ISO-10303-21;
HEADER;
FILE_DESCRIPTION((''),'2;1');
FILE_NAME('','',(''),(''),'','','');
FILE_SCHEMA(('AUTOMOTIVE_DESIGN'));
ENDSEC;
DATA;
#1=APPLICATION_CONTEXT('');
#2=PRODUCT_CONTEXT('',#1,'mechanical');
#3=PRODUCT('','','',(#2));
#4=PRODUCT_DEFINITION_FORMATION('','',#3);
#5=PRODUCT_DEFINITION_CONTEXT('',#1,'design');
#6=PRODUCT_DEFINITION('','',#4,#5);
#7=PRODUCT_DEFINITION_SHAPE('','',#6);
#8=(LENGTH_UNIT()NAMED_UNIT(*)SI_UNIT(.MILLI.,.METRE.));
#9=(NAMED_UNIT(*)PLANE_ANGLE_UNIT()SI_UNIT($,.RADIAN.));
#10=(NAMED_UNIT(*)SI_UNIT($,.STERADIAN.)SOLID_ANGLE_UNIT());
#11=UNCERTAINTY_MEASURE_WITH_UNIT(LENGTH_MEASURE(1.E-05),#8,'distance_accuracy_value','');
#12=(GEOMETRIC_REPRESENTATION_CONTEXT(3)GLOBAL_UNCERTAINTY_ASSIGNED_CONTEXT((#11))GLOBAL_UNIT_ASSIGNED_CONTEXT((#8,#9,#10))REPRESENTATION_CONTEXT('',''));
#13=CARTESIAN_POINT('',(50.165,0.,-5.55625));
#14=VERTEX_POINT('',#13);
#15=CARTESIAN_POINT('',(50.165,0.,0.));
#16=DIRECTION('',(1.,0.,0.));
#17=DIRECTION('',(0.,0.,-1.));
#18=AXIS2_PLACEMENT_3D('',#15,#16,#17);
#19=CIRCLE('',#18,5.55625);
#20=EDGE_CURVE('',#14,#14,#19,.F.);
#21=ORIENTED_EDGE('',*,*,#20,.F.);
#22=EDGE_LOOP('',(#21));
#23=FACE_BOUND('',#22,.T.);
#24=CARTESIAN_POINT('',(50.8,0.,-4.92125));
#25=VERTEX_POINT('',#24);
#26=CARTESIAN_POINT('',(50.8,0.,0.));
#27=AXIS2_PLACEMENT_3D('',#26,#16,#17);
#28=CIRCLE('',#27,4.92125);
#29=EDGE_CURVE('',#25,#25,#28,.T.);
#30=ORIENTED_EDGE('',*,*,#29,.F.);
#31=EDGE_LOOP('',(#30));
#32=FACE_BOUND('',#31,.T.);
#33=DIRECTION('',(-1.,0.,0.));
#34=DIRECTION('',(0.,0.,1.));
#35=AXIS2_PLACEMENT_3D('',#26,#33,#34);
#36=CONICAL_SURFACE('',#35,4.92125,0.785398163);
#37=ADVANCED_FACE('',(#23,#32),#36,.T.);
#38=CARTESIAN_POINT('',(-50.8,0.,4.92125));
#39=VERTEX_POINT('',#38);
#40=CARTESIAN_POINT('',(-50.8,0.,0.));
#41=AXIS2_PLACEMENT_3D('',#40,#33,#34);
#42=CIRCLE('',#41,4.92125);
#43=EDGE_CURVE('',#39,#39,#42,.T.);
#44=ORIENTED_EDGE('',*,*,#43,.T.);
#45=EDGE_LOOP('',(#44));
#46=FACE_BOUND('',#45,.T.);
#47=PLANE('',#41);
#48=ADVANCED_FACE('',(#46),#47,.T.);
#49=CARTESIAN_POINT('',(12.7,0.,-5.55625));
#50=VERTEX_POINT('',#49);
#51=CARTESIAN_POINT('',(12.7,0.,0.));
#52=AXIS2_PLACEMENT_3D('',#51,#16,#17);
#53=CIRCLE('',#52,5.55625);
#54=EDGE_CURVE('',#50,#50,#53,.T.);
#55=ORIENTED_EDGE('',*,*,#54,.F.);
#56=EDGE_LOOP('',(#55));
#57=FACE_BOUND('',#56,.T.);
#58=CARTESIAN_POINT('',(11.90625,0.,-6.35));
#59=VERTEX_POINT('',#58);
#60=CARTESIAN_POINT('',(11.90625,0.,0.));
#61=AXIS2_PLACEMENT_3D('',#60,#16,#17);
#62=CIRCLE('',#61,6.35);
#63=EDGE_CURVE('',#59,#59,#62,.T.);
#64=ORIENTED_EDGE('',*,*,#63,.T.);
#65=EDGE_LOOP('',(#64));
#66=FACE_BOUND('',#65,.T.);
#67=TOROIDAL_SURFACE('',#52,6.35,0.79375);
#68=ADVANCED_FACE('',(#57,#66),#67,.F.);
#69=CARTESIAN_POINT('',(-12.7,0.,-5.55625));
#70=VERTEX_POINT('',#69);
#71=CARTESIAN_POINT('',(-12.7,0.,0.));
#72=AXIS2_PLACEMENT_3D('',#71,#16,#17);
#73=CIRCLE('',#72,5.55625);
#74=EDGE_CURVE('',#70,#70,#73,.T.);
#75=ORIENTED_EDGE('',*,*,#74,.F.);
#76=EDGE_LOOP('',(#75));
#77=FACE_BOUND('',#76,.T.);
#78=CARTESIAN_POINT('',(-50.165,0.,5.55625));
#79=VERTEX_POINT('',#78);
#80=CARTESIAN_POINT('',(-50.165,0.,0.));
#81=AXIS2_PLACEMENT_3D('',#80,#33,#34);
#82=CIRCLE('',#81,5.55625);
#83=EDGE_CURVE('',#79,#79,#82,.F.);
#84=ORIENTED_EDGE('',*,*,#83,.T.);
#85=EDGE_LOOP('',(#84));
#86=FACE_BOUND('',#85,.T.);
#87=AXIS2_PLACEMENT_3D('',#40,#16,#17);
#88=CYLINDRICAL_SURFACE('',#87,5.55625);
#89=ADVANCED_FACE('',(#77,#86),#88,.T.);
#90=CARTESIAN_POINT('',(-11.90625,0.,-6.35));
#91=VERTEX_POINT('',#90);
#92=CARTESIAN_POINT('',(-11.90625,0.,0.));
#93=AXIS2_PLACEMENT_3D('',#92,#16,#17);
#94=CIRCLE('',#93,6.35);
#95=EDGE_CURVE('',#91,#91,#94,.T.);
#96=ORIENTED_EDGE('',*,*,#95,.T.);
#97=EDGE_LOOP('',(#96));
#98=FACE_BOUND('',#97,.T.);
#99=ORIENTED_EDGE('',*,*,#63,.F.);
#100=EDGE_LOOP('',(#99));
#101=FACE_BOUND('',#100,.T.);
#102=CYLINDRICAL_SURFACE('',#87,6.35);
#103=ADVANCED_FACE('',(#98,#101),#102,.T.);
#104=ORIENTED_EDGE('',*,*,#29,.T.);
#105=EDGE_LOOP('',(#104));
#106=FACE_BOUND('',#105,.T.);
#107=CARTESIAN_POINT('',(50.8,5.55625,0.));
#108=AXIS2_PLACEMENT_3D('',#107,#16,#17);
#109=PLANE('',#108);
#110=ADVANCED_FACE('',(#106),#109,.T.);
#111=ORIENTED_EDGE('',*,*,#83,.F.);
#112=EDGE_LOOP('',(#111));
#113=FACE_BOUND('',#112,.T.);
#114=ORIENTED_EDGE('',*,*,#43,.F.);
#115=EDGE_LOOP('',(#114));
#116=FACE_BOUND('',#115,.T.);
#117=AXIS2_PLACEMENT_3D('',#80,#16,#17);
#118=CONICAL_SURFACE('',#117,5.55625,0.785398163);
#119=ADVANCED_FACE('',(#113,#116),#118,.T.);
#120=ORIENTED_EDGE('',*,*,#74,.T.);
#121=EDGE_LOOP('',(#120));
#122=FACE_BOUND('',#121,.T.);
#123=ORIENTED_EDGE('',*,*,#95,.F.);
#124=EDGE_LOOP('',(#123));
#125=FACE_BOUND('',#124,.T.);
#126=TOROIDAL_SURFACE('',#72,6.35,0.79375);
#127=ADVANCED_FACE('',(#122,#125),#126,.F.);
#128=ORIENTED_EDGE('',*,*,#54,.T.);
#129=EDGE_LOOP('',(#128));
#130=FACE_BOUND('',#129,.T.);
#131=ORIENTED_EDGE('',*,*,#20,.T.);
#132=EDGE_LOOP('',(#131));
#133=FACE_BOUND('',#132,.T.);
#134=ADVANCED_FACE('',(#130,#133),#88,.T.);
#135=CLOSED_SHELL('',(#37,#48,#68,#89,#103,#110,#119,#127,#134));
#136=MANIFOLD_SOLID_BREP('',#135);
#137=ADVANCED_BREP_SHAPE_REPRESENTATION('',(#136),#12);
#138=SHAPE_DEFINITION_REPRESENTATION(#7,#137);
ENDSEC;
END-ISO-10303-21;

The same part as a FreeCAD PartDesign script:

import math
import FreeCAD as App
import Part
import Sketcher
from FreeCAD import Vector
Q = App.Units.Quantity


def edges_at(feature, points):
    """Names of the edges that pass closest to the given points."""
    edges = feature.Shape.Edges
    near = lambda p: min(range(len(edges)), key=lambda i: edges[i].distToShape(Part.Vertex(*p))[0])
    return sorted({f"Edge{near(p) + 1}" for p in points})

doc = App.newDocument("Part")
body = doc.addObject("PartDesign::Body", "Body")

sketch1 = body.newObject("Sketcher::SketchObject", "Sketch")
sketch1.AttachmentSupport = (doc.getObject("XY_Plane"), [""])
sketch1.MapMode = "FlatFace"
sketch1.addGeometry([
    Part.LineSegment(Vector(-50.8, 0, 0), Vector(50.8, 0, 0)),
    Part.LineSegment(Vector(50.8, 0, 0), Vector(50.8, 5.6, 0)),
    Part.LineSegment(Vector(50.8, 5.6, 0), Vector(12.7, 5.6, 0)),
    Part.ArcOfCircle(Part.Circle(Vector(12.7, 6.3, 0), Vector(0, 0, 1), 0.8), math.radians(180), math.radians(270)),
    Part.LineSegment(Vector(11.9, 6.3, 0), Vector(-11.9, 6.3, 0)),
    Part.ArcOfCircle(Part.Circle(Vector(-12.7, 6.3, 0), Vector(0, 0, 1), 0.8), math.radians(-90), math.radians(0)),
    Part.LineSegment(Vector(-12.7, 5.6, 0), Vector(-50.8, 5.6, 0)),
    Part.LineSegment(Vector(-50.8, 5.6, 0), Vector(-50.8, 0, 0)),
], False)
sketch1.addConstraint([
    Sketcher.Constraint("Coincident", 0, 2, 1, 1),
    Sketcher.Constraint("Coincident", 1, 2, 2, 1),
    Sketcher.Constraint("Tangent", 2, 2, 3, 2),
    Sketcher.Constraint("Coincident", 3, 1, 4, 1),
    Sketcher.Constraint("Coincident", 4, 2, 5, 2),
    Sketcher.Constraint("Tangent", 5, 1, 6, 1),
    Sketcher.Constraint("Coincident", 6, 2, 7, 1),
    Sketcher.Constraint("Coincident", 7, 2, 0, 1),
    Sketcher.Constraint("Horizontal", 0),
    Sketcher.Constraint("Vertical", 1),
    Sketcher.Constraint("Horizontal", 2),
    Sketcher.Constraint("Horizontal", 4),
    Sketcher.Constraint("Horizontal", 6),
    Sketcher.Constraint("Vertical", 7),
    Sketcher.Constraint("Equal", 3, 5),
    Sketcher.Constraint("Symmetric", 0, 2, 7, 2, -1, 1),
    Sketcher.Constraint("Symmetric", 3, 3, 5, 3, -2),
    Sketcher.Constraint("Horizontal", 5, 3, 3, 1),
    Sketcher.Constraint("DistanceX", 0, 1, 0, 2, Q("4 in")),
    Sketcher.Constraint("DistanceX", 2, 2, 2, 1, Q("1.5 in")),
    Sketcher.Constraint("Radius", 3, Q("0.03125 in")),
    Sketcher.Constraint("DistanceY", 1, 1, 1, 2, Q("0.21875 in")),
])
revolution = body.newObject("PartDesign::Revolution", "Revolution")
revolution.Profile = sketch1
revolution.ReferenceAxis = (sketch1, ["H_Axis"])
revolution.Angle = 360
doc.recompute()

chamfer = body.newObject("PartDesign::Chamfer", "Chamfer")
chamfer.Base = (revolution, edges_at(revolution, [(-50.8, -5.556, 0), (50.8, -5.556, 0)]))
chamfer.Size = Q("0.025 in")

doc.recompute()
